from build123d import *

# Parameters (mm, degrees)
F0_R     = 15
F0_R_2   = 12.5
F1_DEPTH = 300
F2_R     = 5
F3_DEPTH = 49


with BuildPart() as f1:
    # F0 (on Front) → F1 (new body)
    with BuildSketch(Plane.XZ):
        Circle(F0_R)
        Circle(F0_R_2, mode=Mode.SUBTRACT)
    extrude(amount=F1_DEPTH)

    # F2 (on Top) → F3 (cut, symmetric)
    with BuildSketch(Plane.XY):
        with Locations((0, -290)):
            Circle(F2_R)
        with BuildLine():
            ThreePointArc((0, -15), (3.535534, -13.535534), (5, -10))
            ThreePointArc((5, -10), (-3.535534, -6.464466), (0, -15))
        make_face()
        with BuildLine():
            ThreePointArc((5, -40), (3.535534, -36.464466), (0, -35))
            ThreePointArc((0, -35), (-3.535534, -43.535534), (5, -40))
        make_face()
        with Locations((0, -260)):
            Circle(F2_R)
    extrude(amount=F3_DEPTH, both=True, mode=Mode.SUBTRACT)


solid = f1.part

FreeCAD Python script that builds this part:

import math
import FreeCAD as App
import Part
import Sketcher

doc = App.newDocument("Part")
body = doc.addObject("PartDesign::Body", "Body")

sketch1 = body.newObject("Sketcher::SketchObject", "Sketch")
sketch1.AttachmentSupport = (doc.getObject("XZ_Plane"), [""])
sketch1.MapMode = "FlatFace"
sketch1.addGeometry([
    Part.Circle(App.Vector(0, 0, 0), App.Vector(0, 0, 1), 15),
    Part.Circle(App.Vector(0, 0, 0), App.Vector(0, 0, 1), 12),
], False)
sketch1.addConstraint([
    Sketcher.Constraint("Coincident", 0, 3, -1, 1),
    Sketcher.Constraint("Coincident", 1, 3, -1, 1),
    Sketcher.Constraint("Diameter", 0, 30.0),
    Sketcher.Constraint("Diameter", 1, 25.0),
])
pad1 = body.newObject("PartDesign::Pad", "Pad")
pad1.Profile = sketch1
pad1.Length = 300

sketch2 = body.newObject("Sketcher::SketchObject", "Sketch001")
sketch2.AttachmentSupport = (doc.getObject("XY_Plane"), [""])
sketch2.MapMode = "FlatFace"
sketch2.addGeometry([
    Part.Circle(App.Vector(0, -290, 0), App.Vector(0, 0, 1), 5),
    Part.ArcOfCircle(Part.Circle(App.Vector(0, -10, 0), App.Vector(0, 0, 1), 5), math.radians(-90), math.radians(0)),
    Part.ArcOfCircle(Part.Circle(App.Vector(0, -10, 0), App.Vector(0, 0, 1), 5), math.radians(0), math.radians(270)),
    Part.ArcOfCircle(Part.Circle(App.Vector(0, -40, 0), App.Vector(0, 0, 1), 5), math.radians(0), math.radians(90)),
    Part.ArcOfCircle(Part.Circle(App.Vector(0, -40, 0), App.Vector(0, 0, 1), 5), math.radians(90), math.radians(360)),
    Part.Circle(App.Vector(0, -260, 0), App.Vector(0, 0, 1), 5),
], False)
sketch2.addConstraint([
    Sketcher.Constraint("Tangent", 1, 1, 2, 2),
    Sketcher.Constraint("Coincident", 2, 1, 1, 2),
    Sketcher.Constraint("Tangent", 3, 1, 4, 2),
    Sketcher.Constraint("Coincident", 4, 1, 3, 2),
    Sketcher.Constraint("Equal", 0, 1),
    Sketcher.Constraint("Equal", 2, 3),
    Sketcher.Constraint("Equal", 4, 5),
    Sketcher.Constraint("PointOnObject", 0, 3, -2),
    Sketcher.Constraint("PointOnObject", 1, 3, -2),
    Sketcher.Constraint("PointOnObject", 3, 3, -2),
    Sketcher.Constraint("PointOnObject", 5, 3, -2),
    Sketcher.Constraint("PointOnObject", 1, 1, -2),
    Sketcher.Constraint("PointOnObject", 4, 1, -2),
    Sketcher.Constraint("Horizontal", 1, 3, 2, 1),
    Sketcher.Constraint("Horizontal", 4, 3, 3, 1),
    Sketcher.Constraint("Diameter", 0, 10.0),
    Sketcher.Constraint("DistanceY", 0, 3, -1, 1, 290.0),
    Sketcher.Constraint("DistanceY", 1, 3, -1, 1, 10.0),
    Sketcher.Constraint("DistanceY", 3, 3, -1, 1, 40.0),
    Sketcher.Constraint("DistanceY", 5, 3, -1, 1, 260.0),
])
pocket1 = body.newObject("PartDesign::Pocket", "Pocket")
pocket1.Profile = sketch2
pocket1.Length = 98
pocket1.Midplane = True

doc.recompute()
